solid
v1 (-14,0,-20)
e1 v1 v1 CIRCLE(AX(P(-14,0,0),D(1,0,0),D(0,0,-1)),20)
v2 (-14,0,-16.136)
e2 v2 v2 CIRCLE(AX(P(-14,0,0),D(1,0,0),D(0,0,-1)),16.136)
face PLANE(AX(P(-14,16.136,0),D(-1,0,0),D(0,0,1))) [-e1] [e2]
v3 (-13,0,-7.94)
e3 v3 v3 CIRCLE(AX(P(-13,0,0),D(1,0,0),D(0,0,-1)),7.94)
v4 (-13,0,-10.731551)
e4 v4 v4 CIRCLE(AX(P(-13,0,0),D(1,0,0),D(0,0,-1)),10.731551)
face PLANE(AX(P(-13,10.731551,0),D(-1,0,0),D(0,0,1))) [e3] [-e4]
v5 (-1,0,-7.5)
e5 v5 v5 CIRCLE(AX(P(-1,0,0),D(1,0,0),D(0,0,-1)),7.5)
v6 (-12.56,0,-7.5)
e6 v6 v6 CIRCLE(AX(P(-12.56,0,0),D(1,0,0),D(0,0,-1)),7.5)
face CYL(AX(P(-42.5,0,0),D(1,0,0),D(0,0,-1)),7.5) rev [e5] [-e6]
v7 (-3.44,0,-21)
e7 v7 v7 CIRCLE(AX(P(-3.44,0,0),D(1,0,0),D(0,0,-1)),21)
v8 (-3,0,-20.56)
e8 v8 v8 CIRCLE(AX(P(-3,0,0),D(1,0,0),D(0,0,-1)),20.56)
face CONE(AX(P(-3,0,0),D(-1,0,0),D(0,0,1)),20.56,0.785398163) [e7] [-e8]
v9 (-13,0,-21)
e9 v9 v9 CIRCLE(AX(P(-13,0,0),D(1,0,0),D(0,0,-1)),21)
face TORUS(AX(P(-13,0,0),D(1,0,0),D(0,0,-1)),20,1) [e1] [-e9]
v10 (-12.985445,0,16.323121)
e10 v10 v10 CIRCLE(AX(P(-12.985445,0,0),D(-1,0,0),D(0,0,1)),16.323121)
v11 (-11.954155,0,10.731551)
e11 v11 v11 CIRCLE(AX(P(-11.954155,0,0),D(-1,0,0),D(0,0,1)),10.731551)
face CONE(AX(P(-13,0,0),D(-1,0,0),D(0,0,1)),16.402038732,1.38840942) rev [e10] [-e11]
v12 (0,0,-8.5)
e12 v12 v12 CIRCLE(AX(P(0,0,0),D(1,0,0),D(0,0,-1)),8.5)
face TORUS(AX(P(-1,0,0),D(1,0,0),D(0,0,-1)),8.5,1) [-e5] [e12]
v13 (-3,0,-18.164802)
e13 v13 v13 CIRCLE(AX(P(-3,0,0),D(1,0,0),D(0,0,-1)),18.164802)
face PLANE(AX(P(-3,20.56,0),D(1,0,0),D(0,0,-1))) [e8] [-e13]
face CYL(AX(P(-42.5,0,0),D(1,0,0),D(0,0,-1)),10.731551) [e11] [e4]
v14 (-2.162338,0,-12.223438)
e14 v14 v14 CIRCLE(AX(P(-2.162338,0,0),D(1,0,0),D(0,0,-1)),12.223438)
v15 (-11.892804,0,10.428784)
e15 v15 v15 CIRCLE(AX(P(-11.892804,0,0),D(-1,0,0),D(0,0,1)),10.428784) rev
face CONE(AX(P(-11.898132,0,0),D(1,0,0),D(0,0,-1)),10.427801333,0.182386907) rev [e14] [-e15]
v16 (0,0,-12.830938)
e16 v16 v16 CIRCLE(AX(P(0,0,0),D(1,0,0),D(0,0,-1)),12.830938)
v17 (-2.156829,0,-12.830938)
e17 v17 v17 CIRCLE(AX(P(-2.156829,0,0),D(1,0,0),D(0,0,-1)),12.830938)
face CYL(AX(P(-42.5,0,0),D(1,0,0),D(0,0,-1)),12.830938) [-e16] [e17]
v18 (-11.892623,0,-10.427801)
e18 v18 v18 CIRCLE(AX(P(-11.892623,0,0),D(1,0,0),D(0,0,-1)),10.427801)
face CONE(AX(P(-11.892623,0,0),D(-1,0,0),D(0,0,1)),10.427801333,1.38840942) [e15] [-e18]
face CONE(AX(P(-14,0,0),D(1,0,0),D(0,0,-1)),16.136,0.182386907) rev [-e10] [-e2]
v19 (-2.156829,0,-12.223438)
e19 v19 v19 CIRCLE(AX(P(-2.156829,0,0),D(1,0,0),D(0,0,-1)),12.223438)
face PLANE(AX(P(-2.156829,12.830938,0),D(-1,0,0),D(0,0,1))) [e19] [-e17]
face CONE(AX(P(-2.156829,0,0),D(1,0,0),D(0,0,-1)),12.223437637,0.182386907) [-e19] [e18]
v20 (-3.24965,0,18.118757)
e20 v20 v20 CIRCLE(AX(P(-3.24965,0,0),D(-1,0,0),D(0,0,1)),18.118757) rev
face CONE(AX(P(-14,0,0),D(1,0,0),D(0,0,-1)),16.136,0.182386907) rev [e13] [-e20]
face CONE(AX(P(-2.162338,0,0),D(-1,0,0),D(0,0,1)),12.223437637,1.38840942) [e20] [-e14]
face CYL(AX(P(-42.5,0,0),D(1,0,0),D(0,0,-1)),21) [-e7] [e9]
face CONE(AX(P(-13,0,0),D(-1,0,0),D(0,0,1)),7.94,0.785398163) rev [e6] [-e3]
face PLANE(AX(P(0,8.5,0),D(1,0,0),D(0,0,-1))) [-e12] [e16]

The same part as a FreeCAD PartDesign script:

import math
import FreeCAD as App
import Part
import Sketcher
from FreeCAD import Vector
Q = App.Units.Quantity

doc = App.newDocument("Part")
body = doc.addObject("PartDesign::Body", "Body")

# Sketch on XY plane
sketch1 = doc.addObject("Sketcher::SketchObject", "Sketch")
body.addObject(sketch1)
sketch1.AttachmentSupport = (doc.XY_Plane, [""])
sketch1.MapMode = "FlatFace"
sketch1.addGeometry(Part.LineSegment(Vector(-14, 16.136, 0), Vector(-3, 18.164802, 0)), False)
sketch1.addGeometry(Part.LineSegment(Vector(-3, 18.164802, 0), Vector(-3, 20.56, 0)), False)
sketch1.addGeometry(Part.LineSegment(Vector(-3, 20.56, 0), Vector(-3.44, 21, 0)), False)
sketch1.addGeometry(Part.LineSegment(Vector(-3.44, 21, 0), Vector(-13, 21, 0)), False)
sketch1.addGeometry(Part.ArcOfCircle(Part.Circle(Vector(-13, 20, 0), Vector(0, 0, 1), 1), math.radians(90), math.radians(180)), False)
sketch1.addGeometry(Part.LineSegment(Vector(-14, 20, 0), Vector(-14, 16.136, 0)), False)
sketch1.addConstraint(Sketcher.Constraint("Coincident", 0, 2, 1, 1))
sketch1.addConstraint(Sketcher.Constraint("Coincident", 1, 2, 2, 1))
sketch1.addConstraint(Sketcher.Constraint("Coincident", 2, 2, 3, 1))
sketch1.addConstraint(Sketcher.Constraint("Tangent", 3, 2, 4, 1))
sketch1.addConstraint(Sketcher.Constraint("Tangent", 4, 2, 5, 1))
sketch1.addConstraint(Sketcher.Constraint("Coincident", 5, 2, 0, 1))
sketch1.addConstraint(Sketcher.Constraint("Vertical", 1))
sketch1.addConstraint(Sketcher.Constraint("Horizontal", 3))
sketch1.addConstraint(Sketcher.Constraint("Vertical", 5))
sketch1.addConstraint(Sketcher.Constraint("Radius", 4, Q("1 mm")))
sketch1.addConstraint(Sketcher.Constraint("Angle", 2, Q("135 deg")))
sketch1.addConstraint(Sketcher.Constraint("DistanceX", 4, 3, -1, 1, Q("13 mm")))
sketch1.addConstraint(Sketcher.Constraint("DistanceY", -1, 1, 4, 3, Q("20 mm")))
sketch1.addConstraint(Sketcher.Constraint("DistanceX", 0, 2, -1, 1, Q("3 mm")))
sketch1.addConstraint(Sketcher.Constraint("DistanceX", 3, 2, 3, 1, Q("9.56 mm")))
sketch1.addConstraint(Sketcher.Constraint("Angle", 0, Q("10.45 deg")))
sketch1.addConstraint(Sketcher.Constraint("DistanceY", 5, 2, 5, 1, Q("3.864 mm")))
revolution = doc.addObject("PartDesign::Revolution", "Revolution")
body.addObject(revolution)
revolution.Profile = sketch1
revolution.ReferenceAxis = (sketch1, ["H_Axis"])
revolution.Angle = 360

# Sketch on XY plane
sketch2 = doc.addObject("Sketcher::SketchObject", "Sketch001")
body.addObject(sketch2)
sketch2.AttachmentSupport = (doc.XY_Plane, [""])
sketch2.MapMode = "FlatFace"
sketch2.addGeometry(Part.LineSegment(Vector(-3.264206, 18.197675, 0), Vector(-13, 16.402039, 0)), False)
sketch2.addGeometry(Part.LineSegment(Vector(-13, 16.402039, 0), Vector(-11.898132, 10.427801, 0)), False)
sketch2.addGeometry(Part.LineSegment(Vector(-11.898132, 10.427801, 0), Vector(-2.162338, 12.223438, 0)), False)
sketch2.addGeometry(Part.LineSegment(Vector(-2.162338, 12.223438, 0), Vector(-3.264206, 18.197675, 0)), False)
sketch2.addConstraint(Sketcher.Constraint("Coincident", 0, 2, 1, 1))
sketch2.addConstraint(Sketcher.Constraint("Coincident", 1, 2, 2, 1))
sketch2.addConstraint(Sketcher.Constraint("Coincident", 2, 2, 3, 1))
sketch2.addConstraint(Sketcher.Constraint("Coincident", 3, 2, 0, 1))
sketch2.addConstraint(Sketcher.Constraint("Perpendicular", 0, 1))
sketch2.addConstraint(Sketcher.Constraint("Perpendicular", 1, 2))
sketch2.addConstraint(Sketcher.Constraint("Perpendicular", 2, 3))
sketch2.addConstraint(Sketcher.Constraint("DistanceX", 0, 2, -1, 1, Q("13 mm")))
sketch2.addConstraint(Sketcher.Constraint("Distance", 0, Q("9.9 mm")))
sketch2.addConstraint(Sketcher.Constraint("Angle", 0, Q("-169.55 deg")))
sketch2.addConstraint(Sketcher.Constraint("Distance", 1, Q("6.075 mm")))
sketch2.addConstraint(Sketcher.Constraint("DistanceY", -1, 1, 1, 2, Q("10.427801 mm")))
revolution2 = doc.addObject("PartDesign::Revolution", "Revolution001")
body.addObject(revolution2)
revolution2.Profile = sketch2
revolution2.ReferenceAxis = (sketch2, ["H_Axis"])
revolution2.Angle = 360

# Sketch on XY plane
sketch3 = doc.addObject("Sketcher::SketchObject", "Sketch002")
body.addObject(sketch3)
sketch3.AttachmentSupport = (doc.XY_Plane, [""])
sketch3.MapMode = "FlatFace"
sketch3.addGeometry(Part.LineSegment(Vector(-11.948646, 10.731551, 0), Vector(-13, 10.731551, 0)), False)
sketch3.addGeometry(Part.LineSegment(Vector(-13, 10.731551, 0), Vector(-13, 7.94, 0)), False)
sketch3.addGeometry(Part.LineSegment(Vector(-13, 7.94, 0), Vector(-12.56, 7.5, 0)), False)
sketch3.addGeometry(Part.LineSegment(Vector(-12.56, 7.5, 0), Vector(-1, 7.5, 0)), False)
sketch3.addGeometry(Part.ArcOfCircle(Part.Circle(Vector(-1, 8.5, 0), Vector(0, 0, 1), 1), math.radians(-90), math.radians(0)), False)
sketch3.addGeometry(Part.LineSegment(Vector(0, 8.5, 0), Vector(0, 12.830938, 0)), False)
sketch3.addGeometry(Part.LineSegment(Vector(0, 12.830938, 0), Vector(-2.156829, 12.830938, 0)), False)
sketch3.addGeometry(Part.LineSegment(Vector(-2.156829, 12.830938, 0), Vector(-2.156829, 12.223438, 0)), False)
sketch3.addGeometry(Part.LineSegment(Vector(-2.156829, 12.223438, 0), Vector(-11.892623, 10.427801, 0)), False)
sketch3.addGeometry(Part.LineSegment(Vector(-11.892623, 10.427801, 0), Vector(-11.948646, 10.731551, 0)), False)
sketch3.addConstraint(Sketcher.Constraint("Coincident", 0, 2, 1, 1))
sketch3.addConstraint(Sketcher.Constraint("Coincident", 1, 2, 2, 1))
sketch3.addConstraint(Sketcher.Constraint("Coincident", 2, 2, 3, 1))
sketch3.addConstraint(Sketcher.Constraint("Tangent", 3, 2, 4, 1))
sketch3.addConstraint(Sketcher.Constraint("Tangent", 4, 2, 5, 1))
sketch3.addConstraint(Sketcher.Constraint("Coincident", 5, 2, 6, 1))
sketch3.addConstraint(Sketcher.Constraint("Coincident", 6, 2, 7, 1))
sketch3.addConstraint(Sketcher.Constraint("Coincident", 7, 2, 8, 1))
sketch3.addConstraint(Sketcher.Constraint("Coincident", 8, 2, 9, 1))
sketch3.addConstraint(Sketcher.Constraint("Coincident", 9, 2, 0, 1))
sketch3.addConstraint(Sketcher.Constraint("Horizontal", 0))
sketch3.addConstraint(Sketcher.Constraint("Vertical", 1))
sketch3.addConstraint(Sketcher.Constraint("Horizontal", 3))
sketch3.addConstraint(Sketcher.Constraint("Vertical", 5))
sketch3.addConstraint(Sketcher.Constraint("Horizontal", 6))
sketch3.addConstraint(Sketcher.Constraint("Vertical", 7))
sketch3.addConstraint(Sketcher.Constraint("PointOnObject", 4, 2, -2))
sketch3.addConstraint(Sketcher.Constraint("Perpendicular", 8, 9))
sketch3.addConstraint(Sketcher.Constraint("Radius", 4, Q("1 mm")))
sketch3.addConstraint(Sketcher.Constraint("Angle", 2, Q("-45 deg")))
sketch3.addConstraint(Sketcher.Constraint("DistanceX", 0, 2, -1, 1, Q("13 mm")))
sketch3.addConstraint(Sketcher.Constraint("Distance", 8, Q("9.9 mm")))
sketch3.addConstraint(Sketcher.Constraint("DistanceX", 3, 1, 3, 2, Q("11.56 mm")))
sketch3.addConstraint(Sketcher.Constraint("DistanceY", -1, 1, 4, 3, Q("8.5 mm")))
sketch3.addConstraint(Sketcher.Constraint("Angle", 8, Q("-169.55 deg")))
sketch3.addConstraint(Sketcher.Constraint("DistanceY", 7, 2, 7, 1, Q("0.6075 mm")))
sketch3.addConstraint(Sketcher.Constraint("DistanceX", 6, 2, 6, 1, Q("2.156829 mm")))
sketch3.addConstraint(Sketcher.Constraint("DistanceY", 1, 2, 1, 1, Q("2.791551 mm")))
sketch3.addConstraint(Sketcher.Constraint("DistanceY", -1, 1, 8, 2, Q("10.427801 mm")))
revolution3 = doc.addObject("PartDesign::Revolution", "Revolution002")
body.addObject(revolution3)
revolution3.Profile = sketch3
revolution3.ReferenceAxis = (sketch3, ["H_Axis"])
revolution3.Angle = 360

doc.recompute()
